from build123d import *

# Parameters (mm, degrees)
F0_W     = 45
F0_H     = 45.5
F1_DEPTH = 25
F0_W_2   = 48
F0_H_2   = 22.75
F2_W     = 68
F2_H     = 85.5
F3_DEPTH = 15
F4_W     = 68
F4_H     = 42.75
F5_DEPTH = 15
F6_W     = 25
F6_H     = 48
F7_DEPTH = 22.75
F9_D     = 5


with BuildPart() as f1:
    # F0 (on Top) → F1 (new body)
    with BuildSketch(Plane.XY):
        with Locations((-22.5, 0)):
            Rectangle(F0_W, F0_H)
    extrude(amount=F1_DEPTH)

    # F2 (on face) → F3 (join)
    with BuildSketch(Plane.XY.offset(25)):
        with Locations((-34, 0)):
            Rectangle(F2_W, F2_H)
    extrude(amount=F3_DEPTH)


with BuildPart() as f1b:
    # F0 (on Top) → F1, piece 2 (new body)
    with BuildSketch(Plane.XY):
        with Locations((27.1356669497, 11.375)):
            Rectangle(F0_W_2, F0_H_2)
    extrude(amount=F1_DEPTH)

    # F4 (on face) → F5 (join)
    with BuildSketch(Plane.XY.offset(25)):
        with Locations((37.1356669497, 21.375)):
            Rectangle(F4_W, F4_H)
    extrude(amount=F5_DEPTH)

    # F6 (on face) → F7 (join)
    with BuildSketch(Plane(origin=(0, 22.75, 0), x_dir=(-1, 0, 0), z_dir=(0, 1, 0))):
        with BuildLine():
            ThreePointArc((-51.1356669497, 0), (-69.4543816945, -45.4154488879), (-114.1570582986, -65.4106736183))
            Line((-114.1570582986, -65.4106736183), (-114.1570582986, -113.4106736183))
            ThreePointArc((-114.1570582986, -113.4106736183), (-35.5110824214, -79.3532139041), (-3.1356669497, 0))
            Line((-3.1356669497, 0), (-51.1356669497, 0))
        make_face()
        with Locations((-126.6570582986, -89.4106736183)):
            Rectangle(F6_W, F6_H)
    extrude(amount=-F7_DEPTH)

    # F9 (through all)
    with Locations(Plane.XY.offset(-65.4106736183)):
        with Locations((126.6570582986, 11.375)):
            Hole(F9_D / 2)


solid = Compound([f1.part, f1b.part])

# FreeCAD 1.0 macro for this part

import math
import FreeCAD as App
import Part
import Sketcher

doc = App.newDocument("Part")
body = doc.addObject("PartDesign::Body", "Body")

# Sketch on XY plane
sketch1 = doc.addObject("Sketcher::SketchObject", "Sketch")
body.addObject(sketch1)
sketch1.AttachmentSupport = (doc.XY_Plane, [""])
sketch1.MapMode = "FlatFace"
sketch1.addGeometry([
    Part.LineSegment(App.Vector(-45, 22.75, 0), App.Vector(-45, -22.75, 0)),
    Part.LineSegment(App.Vector(-45, -22.75, 0), App.Vector(0, -22.75, 0)),
    Part.LineSegment(App.Vector(0, -22.75, 0), App.Vector(0, 22.75, 0)),
    Part.LineSegment(App.Vector(0, 22.75, 0), App.Vector(-45, 22.75, 0)),
], False)
sketch1.addConstraint([
    Sketcher.Constraint("Coincident", 0, 2, 1, 1),
    Sketcher.Constraint("Coincident", 1, 2, 2, 1),
    Sketcher.Constraint("Coincident", 2, 2, 3, 1),
    Sketcher.Constraint("Coincident", 3, 2, 0, 1),
    Sketcher.Constraint("Vertical", 0),
    Sketcher.Constraint("Horizontal", 1),
    Sketcher.Constraint("Vertical", 2),
    Sketcher.Constraint("Horizontal", 3),
    Sketcher.Constraint("Symmetric", 1, 2, 2, 2, -1, 1),
    Sketcher.Constraint("DistanceX", 1, 1, 1, 2, 45.0),
    Sketcher.Constraint("DistanceY", 0, 2, 0, 1, 45.5),
])
pad1 = doc.addObject("PartDesign::Pad", "Pad")
body.addObject(pad1)
pad1.Profile = sketch1
pad1.Length = 25

# Sketch on XY plane
sketch2 = doc.addObject("Sketcher::SketchObject", "Sketch001")
body.addObject(sketch2)
sketch2.AttachmentSupport = (doc.XY_Plane, [""])
sketch2.MapMode = "FlatFace"
sketch2.AttachmentOffset = App.Placement(App.Vector(0, 0, 25), App.Rotation())
sketch2.addGeometry([
    Part.LineSegment(App.Vector(-68, 42.75, 0), App.Vector(-68, -42.75, 0)),
    Part.LineSegment(App.Vector(-68, -42.75, 0), App.Vector(0, -42.75, 0)),
    Part.LineSegment(App.Vector(0, -42.75, 0), App.Vector(0, 42.75, 0)),
    Part.LineSegment(App.Vector(0, 42.75, 0), App.Vector(-68, 42.75, 0)),
], False)
sketch2.addConstraint([
    Sketcher.Constraint("Coincident", 0, 2, 1, 1),
    Sketcher.Constraint("Coincident", 1, 2, 2, 1),
    Sketcher.Constraint("Coincident", 2, 2, 3, 1),
    Sketcher.Constraint("Coincident", 3, 2, 0, 1),
    Sketcher.Constraint("Vertical", 0),
    Sketcher.Constraint("Horizontal", 1),
    Sketcher.Constraint("Vertical", 2),
    Sketcher.Constraint("Horizontal", 3),
    Sketcher.Constraint("Symmetric", 1, 2, 2, 2, -1, 1),
    Sketcher.Constraint("DistanceX", 1, 1, 1, 2, 68.0),
    Sketcher.Constraint("DistanceY", 0, 2, 0, 1, 85.5),
])
pad2 = doc.addObject("PartDesign::Pad", "Pad001")
body.addObject(pad2)
pad2.Profile = sketch2
pad2.Length = 15
body2 = doc.addObject("PartDesign::Body", "Body001")

# Sketch on XY plane
sketch3 = doc.addObject("Sketcher::SketchObject", "Sketch002")
body2.addObject(sketch3)
sketch3.AttachmentSupport = (doc.getObject("XY_Plane001"), [""])
sketch3.MapMode = "FlatFace"
sketch3.addGeometry([
    Part.LineSegment(App.Vector(3.135667, 22.75, 0), App.Vector(3.135667, 0, 0)),
    Part.LineSegment(App.Vector(3.135667, 0, 0), App.Vector(51.135667, 0, 0)),
    Part.LineSegment(App.Vector(51.135667, 0, 0), App.Vector(51.135667, 22.75, 0)),
    Part.LineSegment(App.Vector(51.135667, 22.75, 0), App.Vector(3.135667, 22.75, 0)),
], False)
sketch3.addConstraint([
    Sketcher.Constraint("Coincident", 0, 2, 1, 1),
    Sketcher.Constraint("Coincident", 1, 2, 2, 1),
    Sketcher.Constraint("Coincident", 2, 2, 3, 1),
    Sketcher.Constraint("Coincident", 3, 2, 0, 1),
    Sketcher.Constraint("Vertical", 0),
    Sketcher.Constraint("Horizontal", 1),
    Sketcher.Constraint("Vertical", 2),
    Sketcher.Constraint("Horizontal", 3),
    Sketcher.Constraint("PointOnObject", 0, 2, -1),
    Sketcher.Constraint("DistanceX", 1, 1, 1, 2, 48.0),
    Sketcher.Constraint("DistanceY", 0, 2, 0, 1, 22.75),
    Sketcher.Constraint("DistanceX", -1, 1, 0, 2, 3.135667),
])
pad3 = doc.addObject("PartDesign::Pad", "Pad002")
body2.addObject(pad3)
pad3.Profile = sketch3
pad3.Length = 25

# Sketch on XY plane
sketch4 = doc.addObject("Sketcher::SketchObject", "Sketch003")
body2.addObject(sketch4)
sketch4.AttachmentSupport = (doc.getObject("XY_Plane001"), [""])
sketch4.MapMode = "FlatFace"
sketch4.AttachmentOffset = App.Placement(App.Vector(0, 0, 25), App.Rotation())
sketch4.addGeometry([
    Part.LineSegment(App.Vector(3.135667, 42.75, 0), App.Vector(3.135667, 0, 0)),
    Part.LineSegment(App.Vector(3.135667, 0, 0), App.Vector(71.135667, 0, 0)),
    Part.LineSegment(App.Vector(71.135667, 0, 0), App.Vector(71.135667, 42.75, 0)),
    Part.LineSegment(App.Vector(71.135667, 42.75, 0), App.Vector(3.135667, 42.75, 0)),
], False)
sketch4.addConstraint([
    Sketcher.Constraint("Coincident", 0, 2, 1, 1),
    Sketcher.Constraint("Coincident", 1, 2, 2, 1),
    Sketcher.Constraint("Coincident", 2, 2, 3, 1),
    Sketcher.Constraint("Coincident", 3, 2, 0, 1),
    Sketcher.Constraint("Vertical", 0),
    Sketcher.Constraint("Horizontal", 1),
    Sketcher.Constraint("Vertical", 2),
    Sketcher.Constraint("Horizontal", 3),
    Sketcher.Constraint("PointOnObject", 0, 2, -1),
    Sketcher.Constraint("DistanceX", 1, 1, 1, 2, 68.0),
    Sketcher.Constraint("DistanceY", 0, 2, 0, 1, 42.75),
    Sketcher.Constraint("DistanceX", -1, 1, 0, 2, 3.135667),
])
pad4 = doc.addObject("PartDesign::Pad", "Pad003")
body2.addObject(pad4)
pad4.Profile = sketch4
pad4.Length = 15

# Sketch on XZ plane
sketch5 = doc.addObject("Sketcher::SketchObject", "Sketch004")
body2.addObject(sketch5)
sketch5.AttachmentSupport = (doc.getObject("XZ_Plane001"), [""])
sketch5.MapMode = "FlatFace"
sketch5.AttachmentOffset = App.Placement(App.Vector(0, 0, -22.75), App.Rotation())
sketch5.addGeometry([
    Part.ArcOfCircle(Part.Circle(App.Vector(116.591632, 0, 0), App.Vector(0, 0, 1), 65.455965), math.radians(180), math.radians(267.868445)),  # 0
    Part.LineSegment(App.Vector(114.157058, -65.410674, 0), App.Vector(139.157058, -65.410674, 0)),  # 1
    Part.LineSegment(App.Vector(139.157058, -65.410674, 0), App.Vector(139.157058, -113.410674, 0)),  # 2
    Part.LineSegment(App.Vector(139.157058, -113.410674, 0), App.Vector(114.157058, -113.410674, 0)),  # 3
    Part.ArcOfCircle(Part.Circle(App.Vector(116.57205, 0, 0), App.Vector(0, 0, 1), 113.436383), math.radians(180), math.radians(268.780115)),  # 4
    Part.LineSegment(App.Vector(3.135667, 0, 0), App.Vector(51.135667, 0, 0)),  # 5
], False)
sketch5.addConstraint([
    Sketcher.Constraint("Coincident", 0, 2, 1, 1),
    Sketcher.Constraint("Coincident", 1, 2, 2, 1),
    Sketcher.Constraint("Coincident", 2, 2, 3, 1),
    Sketcher.Constraint("Coincident", 3, 2, 4, 2),
    Sketcher.Constraint("Coincident", 4, 1, 5, 1),
    Sketcher.Constraint("Coincident", 5, 2, 0, 1),
    Sketcher.Constraint("Horizontal", 1),
    Sketcher.Constraint("Vertical", 2),
    Sketcher.Constraint("Horizontal", 3),
    Sketcher.Constraint("Horizontal", 5),
    Sketcher.Constraint("PointOnObject", 0, 3, -1),
    Sketcher.Constraint("PointOnObject", 4, 3, -1),
    Sketcher.Constraint("PointOnObject", 4, 1, -1),
    Sketcher.Constraint("Vertical", 0, 2, 3, 2),
    Sketcher.Constraint("Equal", 5, 2),
    Sketcher.Constraint("DistanceX", 1, 1, 1, 2, 25.0),
    Sketcher.Constraint("DistanceX", 5, 1, 5, 2, 48.0),
    Sketcher.Constraint("Radius", 0, 65.455965),
    Sketcher.Constraint("Radius", 4, 113.436383),
    Sketcher.Constraint("DistanceX", -1, 1, 4, 3, 116.57205),
])
pad5 = doc.addObject("PartDesign::Pad", "Pad004")
body2.addObject(pad5)
pad5.Profile = sketch5
pad5.Length = 22.75

# Sketch on XY plane
sketch6 = doc.addObject("Sketcher::SketchObject", "Sketch005")
body2.addObject(sketch6)
sketch6.AttachmentSupport = (doc.getObject("XY_Plane001"), [""])
sketch6.MapMode = "FlatFace"
sketch6.AttachmentOffset = App.Placement(App.Vector(0, 0, -65.410674), App.Rotation())
sketch6.addGeometry(Part.Circle(App.Vector(126.657058, 11.375, 0), App.Vector(0, 0, 1), 2.5), False)
sketch6.addConstraint([
    Sketcher.Constraint("Diameter", 0, 5.0),
    Sketcher.Constraint("DistanceY", -1, 1, 0, 3, 11.375),
    Sketcher.Constraint("DistanceX", -1, 1, 0, 3, 126.657058),
])
doc.recompute()
hole = doc.addObject("PartDesign::Hole", "Hole")
body2.addObject(hole)
hole.Profile = sketch6
hole.ThreadType = "None"
hole.Diameter = 5
hole.DepthType = "ThroughAll"

doc.recompute()
